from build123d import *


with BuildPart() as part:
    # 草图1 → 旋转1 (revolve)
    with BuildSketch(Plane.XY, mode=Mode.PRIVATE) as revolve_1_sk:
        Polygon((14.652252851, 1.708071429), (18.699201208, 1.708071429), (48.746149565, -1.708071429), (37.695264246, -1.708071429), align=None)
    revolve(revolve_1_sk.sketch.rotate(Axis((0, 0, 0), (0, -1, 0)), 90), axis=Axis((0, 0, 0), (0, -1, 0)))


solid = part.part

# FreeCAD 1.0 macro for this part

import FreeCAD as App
import Part
import Sketcher
from FreeCAD import Vector
Q = App.Units.Quantity


def add_polygon(sketch, points):
    """Adds a closed chain of lines whose ends are joined by coincident constraints."""
    first, n = sketch.GeometryCount, len(points)
    for a, b in zip(points, points[1:] + points[:1]):
        sketch.addGeometry(Part.LineSegment(App.Vector(*a, 0), App.Vector(*b, 0)), False)
    for i in range(n):
        sketch.addConstraint(Sketcher.Constraint("Coincident", first + i, 2, first + (i + 1) % n, 1))

doc = App.newDocument("Part")
body = doc.addObject("PartDesign::Body", "Body")

# Sketch on XY plane
sketch1 = body.newObject("Sketcher::SketchObject", "Sketch")
sketch1.AttachmentSupport = (doc.getObject("XY_Plane"), [""])
sketch1.MapMode = "FlatFace"
add_polygon(sketch1, [(18.7, 1.7), (14.7, 1.7), (37.7, -1.7), (48.7, -1.7)])  # lines 0-3
sketch1.addConstraint(Sketcher.Constraint("Horizontal", 0))
sketch1.addConstraint(Sketcher.Constraint("Horizontal", 2))
sketch1.addConstraint(Sketcher.Constraint("DistanceX", 0, 2, 0, 1, Q("4.046948 mm")))
sketch1.addConstraint(Sketcher.Constraint("DistanceX", -1, 1, 3, 2, Q("18.699201 mm")))
sketch1.addConstraint(Sketcher.Constraint("Distance", 3, Q("30.240521 mm")))
sketch1.addConstraint(Sketcher.Constraint("DistanceX", 2, 1, 2, 2, Q("11.050885 mm")))
sketch1.addConstraint(Sketcher.Constraint("DistanceY", -1, 1, 0, 2, Q("1.708071 mm")))
sketch1.addConstraint(Sketcher.Constraint("DistanceY", 1, 2, -1, 1, Q("1.708071 mm")))
revolution = body.newObject("PartDesign::Revolution", "Revolution")
revolution.Profile = sketch1
revolution.ReferenceAxis = (sketch1, ["V_Axis"])
revolution.Angle = 360

doc.recompute()
